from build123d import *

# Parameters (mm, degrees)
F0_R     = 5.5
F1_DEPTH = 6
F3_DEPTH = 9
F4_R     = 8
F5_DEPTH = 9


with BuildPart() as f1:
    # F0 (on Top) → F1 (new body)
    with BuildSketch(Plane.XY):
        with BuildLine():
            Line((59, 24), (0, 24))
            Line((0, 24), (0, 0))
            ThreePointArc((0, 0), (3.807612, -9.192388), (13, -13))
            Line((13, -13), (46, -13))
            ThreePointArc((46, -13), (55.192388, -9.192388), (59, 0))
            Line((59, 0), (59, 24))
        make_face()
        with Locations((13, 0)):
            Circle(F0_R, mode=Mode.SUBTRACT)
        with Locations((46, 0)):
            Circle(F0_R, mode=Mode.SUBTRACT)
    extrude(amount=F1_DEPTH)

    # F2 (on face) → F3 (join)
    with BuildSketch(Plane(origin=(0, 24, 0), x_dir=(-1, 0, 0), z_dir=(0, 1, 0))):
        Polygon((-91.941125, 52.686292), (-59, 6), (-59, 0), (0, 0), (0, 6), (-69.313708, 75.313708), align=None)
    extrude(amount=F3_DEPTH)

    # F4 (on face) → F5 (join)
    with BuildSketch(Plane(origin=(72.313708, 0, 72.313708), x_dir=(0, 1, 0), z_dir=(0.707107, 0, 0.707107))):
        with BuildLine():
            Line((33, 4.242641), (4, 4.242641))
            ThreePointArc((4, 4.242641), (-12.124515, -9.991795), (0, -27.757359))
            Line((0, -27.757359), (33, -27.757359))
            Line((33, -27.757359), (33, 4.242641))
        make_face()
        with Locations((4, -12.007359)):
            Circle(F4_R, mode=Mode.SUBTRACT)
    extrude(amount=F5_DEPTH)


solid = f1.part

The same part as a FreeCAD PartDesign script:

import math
import FreeCAD as App
import Part
import Sketcher
from FreeCAD import Vector
Q = App.Units.Quantity


def add_polygon(sketch, points):
    """Adds a closed chain of lines whose ends are joined by coincident constraints."""
    first, n = sketch.GeometryCount, len(points)
    for a, b in zip(points, points[1:] + points[:1]):
        sketch.addGeometry(Part.LineSegment(App.Vector(*a, 0), App.Vector(*b, 0)), False)
    for i in range(n):
        sketch.addConstraint(Sketcher.Constraint("Coincident", first + i, 2, first + (i + 1) % n, 1))

doc = App.newDocument("Part")
params = doc.addObject("Spreadsheet::Sheet", "Params")
for row, (alias, value) in enumerate([
    ("sketch1_diameter", "11 mm"),
    ("sketch1_radius", "13.000001 mm"),
    ("sketch1_width", "59 mm"),
    ("sketch1_height", "24 mm"),
    ("pad1_length", "6 mm"),
    ("sketch2_width", "59 mm"),
    ("sketch2_height", "6 mm"),
    ("sketch2_length", "31.999999 mm"),
    ("pad2_length", "9 mm"),
    ("sketch3_diameter", "16 mm"),
    ("sketch3_width", "29 mm"),
    ("sketch3_width2", "33 mm"),
    ("sketch3_height", "32 mm"),
    ("pad3_length", "9 mm"),
], start=1):
    params.set(f"A{row}", alias)
    params.set(f"B{row}", "=" + value)
    params.setAlias(f"B{row}", alias)

body = doc.addObject("PartDesign::Body", "Body")

sketch1 = body.newObject("Sketcher::SketchObject", "Sketch")
sketch1.AttachmentSupport = (doc.getObject("XY_Plane"), [""])
sketch1.MapMode = "FlatFace"
sketch1.addGeometry(Part.LineSegment(Vector(59, 24, 0), Vector(0, 24, 0)), False)
sketch1.addGeometry(Part.LineSegment(Vector(0, 24, 0), Vector(0, 0, 0)), False)
sketch1.addGeometry(Part.ArcOfCircle(Part.Circle(Vector(13, 0, 0), Vector(0, 0, 1), 13), math.radians(-180), math.radians(-90)), False)
sketch1.addGeometry(Part.LineSegment(Vector(13, -13, 0), Vector(46, -13, 0)), False)
sketch1.addGeometry(Part.ArcOfCircle(Part.Circle(Vector(46, 0, 0), Vector(0, 0, 1), 13), math.radians(-90), math.radians(0)), False)
sketch1.addGeometry(Part.LineSegment(Vector(59, 0, 0), Vector(59, 24, 0)), False)
sketch1.addGeometry(Part.Circle(Vector(13, 0, 0), Vector(0, 0, 1), 6), False)
sketch1.addGeometry(Part.Circle(Vector(46, 0, 0), Vector(0, 0, 1), 6), False)
sketch1.addConstraint(Sketcher.Constraint("Coincident", 0, 2, 1, 1))
sketch1.addConstraint(Sketcher.Constraint("Tangent", 1, 2, 2, 1))
sketch1.addConstraint(Sketcher.Constraint("Tangent", 2, 2, 3, 1))
sketch1.addConstraint(Sketcher.Constraint("Tangent", 3, 2, 4, 1))
sketch1.addConstraint(Sketcher.Constraint("Tangent", 4, 2, 5, 1))
sketch1.addConstraint(Sketcher.Constraint("Coincident", 5, 2, 0, 1))
sketch1.addConstraint(Sketcher.Constraint("Horizontal", 0))
sketch1.addConstraint(Sketcher.Constraint("Vertical", 1))
sketch1.addConstraint(Sketcher.Constraint("Horizontal", 3))
sketch1.addConstraint(Sketcher.Constraint("Vertical", 5))
sketch1.addConstraint(Sketcher.Constraint("Coincident", 1, 2, -1, 1))
sketch1.addConstraint(Sketcher.Constraint("Coincident", 6, 3, 2, 3))
sketch1.addConstraint(Sketcher.Constraint("Coincident", 7, 3, 4, 3))
sketch1.addConstraint(Sketcher.Constraint("Equal", 2, 4))
sketch1.addConstraint(Sketcher.Constraint("Equal", 6, 7))
sketch1.addConstraint(Sketcher.Constraint("Diameter", 6, Q("11 mm")))
sketch1.addConstraint(Sketcher.Constraint("Radius", 2, Q("13.000001 mm")))
sketch1.addConstraint(Sketcher.Constraint("DistanceX", 0, 2, 0, 1, Q("59 mm")))
sketch1.addConstraint(Sketcher.Constraint("DistanceY", 1, 2, 1, 1, Q("24 mm")))
sketch1.setExpression("Constraints[15]", "Params.sketch1_diameter")
sketch1.setExpression("Constraints[16]", "Params.sketch1_radius")
sketch1.setExpression("Constraints[17]", "Params.sketch1_width")
sketch1.setExpression("Constraints[18]", "Params.sketch1_height")
pad1 = body.newObject("PartDesign::Pad", "Pad")
pad1.Profile = sketch1
pad1.setExpression("Length", "Params.pad1_length")

sketch2 = body.newObject("Sketcher::SketchObject", "Sketch001")
sketch2.AttachmentSupport = (doc.getObject("XZ_Plane"), [""])
sketch2.MapMode = "FlatFace"
sketch2.AttachmentOffset = App.Placement(Vector(0, 0, -24), App.Rotation())
add_polygon(sketch2, [(92, 53), (59, 6), (59, 0), (0, 0), (0, 6), (69, 75)])
sketch2.addConstraint(Sketcher.Constraint("Vertical", 1))
sketch2.addConstraint(Sketcher.Constraint("Horizontal", 2))
sketch2.addConstraint(Sketcher.Constraint("Vertical", 3))
sketch2.addConstraint(Sketcher.Constraint("Coincident", 2, 2, -1, 1))
sketch2.addConstraint(Sketcher.Constraint("Perpendicular", 4, 5))
sketch2.addConstraint(Sketcher.Constraint("Horizontal", 0, 2, 3, 2))
sketch2.addConstraint(Sketcher.Constraint("DistanceX", 2, 2, 2, 1, Q("59 mm")))
sketch2.addConstraint(Sketcher.Constraint("DistanceY", 1, 2, 1, 1, Q("6 mm")))
sketch2.addConstraint(Sketcher.Constraint("Angle", 4, Q("45 deg")))
sketch2.addConstraint(Sketcher.Constraint("Distance", 5, Q("31.999999 mm")))
sketch2.addConstraint(Sketcher.Constraint("DistanceX", -1, 1, 4, 2, Q("69.313708 mm")))
sketch2.setExpression("Constraints[12]", "Params.sketch2_width")
sketch2.setExpression("Constraints[13]", "Params.sketch2_height")
sketch2.setExpression("Constraints[15]", "Params.sketch2_length")
pad2 = body.newObject("PartDesign::Pad", "Pad001")
pad2.Profile = sketch2
pad2.setExpression("Length", "Params.pad2_length")
pad2.Reversed = True

sketch3 = body.newObject("Sketcher::SketchObject", "Sketch002")
sketch3.Placement = App.Placement(Vector(72.313708, 0, 72.313708), App.Rotation(Vector(0, 1, 0), Vector(-0.707106781, 0, 0.707106781), Vector(0.707106781, 0, 0.707106781), "ZXY"))
sketch3.addGeometry(Part.LineSegment(Vector(33, 4, 0), Vector(4, 4, 0)), False)
sketch3.addGeometry(Part.ArcOfCircle(Part.Circle(Vector(4, -12, 0), Vector(0, 0, 1), 16), math.radians(90), math.radians(256)), False)
sketch3.addGeometry(Part.LineSegment(Vector(0, -28, 0), Vector(33, -28, 0)), False)
sketch3.addGeometry(Part.LineSegment(Vector(33, -28, 0), Vector(33, 4, 0)), False)
sketch3.addGeometry(Part.Circle(Vector(4, -12, 0), Vector(0, 0, 1), 8), False)
sketch3.addConstraint(Sketcher.Constraint("Tangent", 0, 2, 1, 1))
sketch3.addConstraint(Sketcher.Constraint("Coincident", 1, 2, 2, 1))
sketch3.addConstraint(Sketcher.Constraint("Coincident", 2, 2, 3, 1))
sketch3.addConstraint(Sketcher.Constraint("Coincident", 3, 2, 0, 1))
sketch3.addConstraint(Sketcher.Constraint("Horizontal", 0))
sketch3.addConstraint(Sketcher.Constraint("Horizontal", 2))
sketch3.addConstraint(Sketcher.Constraint("Vertical", 3))
sketch3.addConstraint(Sketcher.Constraint("Coincident", 4, 3, 1, 3))
sketch3.addConstraint(Sketcher.Constraint("PointOnObject", 1, 2, -2))
sketch3.addConstraint(Sketcher.Constraint("Diameter", 4, Q("16 mm")))
sketch3.addConstraint(Sketcher.Constraint("DistanceX", 0, 2, 0, 1, Q("29 mm")))
sketch3.addConstraint(Sketcher.Constraint("DistanceX", 2, 1, 2, 2, Q("33 mm")))
sketch3.addConstraint(Sketcher.Constraint("DistanceY", 3, 1, 3, 2, Q("32 mm")))
sketch3.addConstraint(Sketcher.Constraint("DistanceY", 1, 3, -1, 1, Q("12.007359 mm")))
sketch3.setExpression("Constraints[9]", "Params.sketch3_diameter")
sketch3.setExpression("Constraints[10]", "Params.sketch3_width")
sketch3.setExpression("Constraints[11]", "Params.sketch3_width2")
sketch3.setExpression("Constraints[12]", "Params.sketch3_height")
pad3 = body.newObject("PartDesign::Pad", "Pad002")
pad3.Profile = sketch3
pad3.setExpression("Length", "Params.pad3_length")

doc.recompute()
